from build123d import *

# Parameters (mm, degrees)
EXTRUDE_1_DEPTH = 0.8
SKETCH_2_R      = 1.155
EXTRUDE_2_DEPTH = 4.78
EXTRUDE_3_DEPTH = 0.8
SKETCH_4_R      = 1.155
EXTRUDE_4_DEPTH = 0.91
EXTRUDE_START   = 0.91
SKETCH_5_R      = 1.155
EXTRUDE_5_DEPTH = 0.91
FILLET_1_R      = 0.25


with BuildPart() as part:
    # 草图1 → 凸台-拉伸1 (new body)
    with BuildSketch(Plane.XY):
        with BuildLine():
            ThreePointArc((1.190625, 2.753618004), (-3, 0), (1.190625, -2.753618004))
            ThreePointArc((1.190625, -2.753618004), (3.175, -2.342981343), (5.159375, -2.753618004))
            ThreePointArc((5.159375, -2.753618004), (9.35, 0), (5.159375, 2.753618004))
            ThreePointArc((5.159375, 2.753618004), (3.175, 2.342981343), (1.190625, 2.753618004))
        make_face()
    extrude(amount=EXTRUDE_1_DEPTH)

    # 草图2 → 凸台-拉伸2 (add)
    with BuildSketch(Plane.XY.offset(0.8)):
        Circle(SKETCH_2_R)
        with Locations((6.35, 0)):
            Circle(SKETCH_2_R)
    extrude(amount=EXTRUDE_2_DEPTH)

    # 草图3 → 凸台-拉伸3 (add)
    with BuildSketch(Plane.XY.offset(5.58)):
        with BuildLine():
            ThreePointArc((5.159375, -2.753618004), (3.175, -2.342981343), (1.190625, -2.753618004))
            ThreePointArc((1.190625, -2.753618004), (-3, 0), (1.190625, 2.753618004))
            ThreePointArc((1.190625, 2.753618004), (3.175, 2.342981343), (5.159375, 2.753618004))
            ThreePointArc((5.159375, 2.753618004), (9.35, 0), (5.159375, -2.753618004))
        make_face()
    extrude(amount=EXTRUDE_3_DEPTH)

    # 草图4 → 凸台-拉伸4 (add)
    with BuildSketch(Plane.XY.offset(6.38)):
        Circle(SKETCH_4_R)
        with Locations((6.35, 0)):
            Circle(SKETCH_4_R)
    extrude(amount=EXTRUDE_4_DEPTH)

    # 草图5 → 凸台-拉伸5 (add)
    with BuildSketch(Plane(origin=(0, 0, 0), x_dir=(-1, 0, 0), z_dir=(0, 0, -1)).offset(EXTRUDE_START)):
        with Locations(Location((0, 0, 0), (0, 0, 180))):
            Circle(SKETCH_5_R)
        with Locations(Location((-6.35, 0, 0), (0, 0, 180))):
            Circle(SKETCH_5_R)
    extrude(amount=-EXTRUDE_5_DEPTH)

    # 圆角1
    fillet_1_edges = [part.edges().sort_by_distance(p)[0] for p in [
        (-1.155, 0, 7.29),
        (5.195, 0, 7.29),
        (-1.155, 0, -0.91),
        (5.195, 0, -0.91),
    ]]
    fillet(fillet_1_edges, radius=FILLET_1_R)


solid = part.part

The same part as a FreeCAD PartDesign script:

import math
import FreeCAD as App
import Part
import Sketcher
from FreeCAD import Vector
Q = App.Units.Quantity


def edges_at(feature, points):
    """Names of the edges that pass closest to the given points."""
    edges = feature.Shape.Edges
    near = lambda p: min(range(len(edges)), key=lambda i: edges[i].distToShape(Part.Vertex(*p))[0])
    return sorted({f"Edge{near(p) + 1}" for p in points})

doc = App.newDocument("Part")
body = doc.addObject("PartDesign::Body", "Body")

# Sketch on XY plane
sketch1 = body.newObject("Sketcher::SketchObject", "Sketch")
sketch1.AttachmentSupport = (doc.getObject("XY_Plane"), [""])
sketch1.MapMode = "FlatFace"
sketch1.addGeometry(Part.ArcOfCircle(Part.Circle(Vector(0, 0, 0), Vector(0, 0, 1), 3), math.radians(67), math.radians(293)), False)
sketch1.addGeometry(Part.ArcOfCircle(Part.Circle(Vector(3.2, -7.3, 0), Vector(0, 0, 1), 5), math.radians(67), math.radians(113)), False)
sketch1.addGeometry(Part.ArcOfCircle(Part.Circle(Vector(6.3, 0, 0), Vector(0, 0, 1), 3), math.radians(-113), math.radians(113)), False)
sketch1.addGeometry(Part.ArcOfCircle(Part.Circle(Vector(3.2, 7.3, 0), Vector(0, 0, 1), 5), math.radians(-113), math.radians(-67)), False)
sketch1.addConstraint(Sketcher.Constraint("Tangent", 0, 2, 1, 2))
sketch1.addConstraint(Sketcher.Constraint("Tangent", 1, 1, 2, 1))
sketch1.addConstraint(Sketcher.Constraint("Tangent", 2, 2, 3, 2))
sketch1.addConstraint(Sketcher.Constraint("Tangent", 3, 1, 0, 1))
sketch1.addConstraint(Sketcher.Constraint("Coincident", 0, 3, -1, 1))
sketch1.addConstraint(Sketcher.Constraint("Equal", 0, 2))
sketch1.addConstraint(Sketcher.Constraint("Equal", 1, 3))
sketch1.addConstraint(Sketcher.Constraint("PointOnObject", 2, 3, -1))
sketch1.addConstraint(Sketcher.Constraint("Radius", 0, Q("3 mm")))
sketch1.addConstraint(Sketcher.Constraint("Radius", 1, Q("5 mm")))
sketch1.addConstraint(Sketcher.Constraint("DistanceX", -1, 1, 2, 3, Q("6.35 mm")))
pad1 = body.newObject("PartDesign::Pad", "Pad")
pad1.Profile = sketch1
pad1.Length = 0.8

# Sketch on XY plane
sketch2 = body.newObject("Sketcher::SketchObject", "Sketch001")
sketch2.AttachmentSupport = (doc.getObject("XY_Plane"), [""])
sketch2.MapMode = "FlatFace"
sketch2.AttachmentOffset = App.Placement(Vector(0, 0, 0.8), App.Rotation())
sketch2.addGeometry(Part.Circle(Vector(0, 0, 0), Vector(0, 0, 1), 1.2), False)
sketch2.addGeometry(Part.Circle(Vector(6.3, 0, 0), Vector(0, 0, 1), 1.2), False)
sketch2.addConstraint(Sketcher.Constraint("Coincident", 0, 3, -1, 1))
sketch2.addConstraint(Sketcher.Constraint("Equal", 0, 1))
sketch2.addConstraint(Sketcher.Constraint("PointOnObject", 1, 3, -1))
sketch2.addConstraint(Sketcher.Constraint("Diameter", 0, Q("2.31 mm")))
sketch2.addConstraint(Sketcher.Constraint("DistanceX", -1, 1, 1, 3, Q("6.35 mm")))
pad2 = body.newObject("PartDesign::Pad", "Pad001")
pad2.Profile = sketch2
pad2.Length = 4.78

# Sketch on XY plane
sketch3 = body.newObject("Sketcher::SketchObject", "Sketch002")
sketch3.AttachmentSupport = (doc.getObject("XY_Plane"), [""])
sketch3.MapMode = "FlatFace"
sketch3.AttachmentOffset = App.Placement(Vector(0, 0, 5.58), App.Rotation())
sketch3.addGeometry(Part.ArcOfCircle(Part.Circle(Vector(3.2, -7.3, 0), Vector(0, 0, 1), 5), math.radians(67), math.radians(113)), False)
sketch3.addGeometry(Part.ArcOfCircle(Part.Circle(Vector(6.3, 0, 0), Vector(0, 0, 1), 3), math.radians(-113), math.radians(113)), False)
sketch3.addGeometry(Part.ArcOfCircle(Part.Circle(Vector(3.2, 7.3, 0), Vector(0, 0, 1), 5), math.radians(-113), math.radians(-67)), False)
sketch3.addGeometry(Part.ArcOfCircle(Part.Circle(Vector(0, 0, 0), Vector(0, 0, 1), 3), math.radians(67), math.radians(293)), False)
sketch3.addConstraint(Sketcher.Constraint("Tangent", 0, 1, 1, 1))
sketch3.addConstraint(Sketcher.Constraint("Tangent", 1, 2, 2, 2))
sketch3.addConstraint(Sketcher.Constraint("Tangent", 2, 1, 3, 1))
sketch3.addConstraint(Sketcher.Constraint("Tangent", 3, 2, 0, 2))
sketch3.addConstraint(Sketcher.Constraint("Coincident", 3, 3, -1, 1))
sketch3.addConstraint(Sketcher.Constraint("Equal", 0, 2))
sketch3.addConstraint(Sketcher.Constraint("Equal", 1, 3))
sketch3.addConstraint(Sketcher.Constraint("PointOnObject", 1, 3, -1))
sketch3.addConstraint(Sketcher.Constraint("Radius", 0, Q("5 mm")))
sketch3.addConstraint(Sketcher.Constraint("Radius", 1, Q("3 mm")))
sketch3.addConstraint(Sketcher.Constraint("DistanceX", -1, 1, 1, 3, Q("6.35 mm")))
pad3 = body.newObject("PartDesign::Pad", "Pad002")
pad3.Profile = sketch3
pad3.Length = 0.8

# Sketch on XY plane
sketch4 = body.newObject("Sketcher::SketchObject", "Sketch003")
sketch4.AttachmentSupport = (doc.getObject("XY_Plane"), [""])
sketch4.MapMode = "FlatFace"
sketch4.AttachmentOffset = App.Placement(Vector(0, 0, 6.38), App.Rotation())
sketch4.addGeometry(Part.Circle(Vector(0, 0, 0), Vector(0, 0, 1), 1.2), False)
sketch4.addGeometry(Part.Circle(Vector(6.3, 0, 0), Vector(0, 0, 1), 1.2), False)
sketch4.addConstraint(Sketcher.Constraint("Coincident", 0, 3, -1, 1))
sketch4.addConstraint(Sketcher.Constraint("Equal", 0, 1))
sketch4.addConstraint(Sketcher.Constraint("PointOnObject", 1, 3, -1))
sketch4.addConstraint(Sketcher.Constraint("Diameter", 0, Q("2.31 mm")))
sketch4.addConstraint(Sketcher.Constraint("DistanceX", -1, 1, 1, 3, Q("6.35 mm")))
pad4 = body.newObject("PartDesign::Pad", "Pad003")
pad4.Profile = sketch4
pad4.Length = 0.91

# Sketch on XY plane
sketch5 = body.newObject("Sketcher::SketchObject", "Sketch004")
sketch5.AttachmentSupport = (doc.getObject("XY_Plane"), [""])
sketch5.MapMode = "FlatFace"
sketch5.AttachmentOffset = App.Placement(Vector(0, 0, -0.91), App.Rotation())
sketch5.addGeometry(Part.Circle(Vector(0, 0, 0), Vector(0, 0, 1), 1.2), False)
sketch5.addGeometry(Part.Circle(Vector(6.3, 0, 0), Vector(0, 0, 1), 1.2), False)
sketch5.addConstraint(Sketcher.Constraint("Coincident", 0, 3, -1, 1))
sketch5.addConstraint(Sketcher.Constraint("Equal", 0, 1))
sketch5.addConstraint(Sketcher.Constraint("PointOnObject", 1, 3, -1))
sketch5.addConstraint(Sketcher.Constraint("Diameter", 0, Q("2.31 mm")))
sketch5.addConstraint(Sketcher.Constraint("DistanceX", -1, 1, 1, 3, Q("6.35 mm")))
pad5 = body.newObject("PartDesign::Pad", "Pad004")
pad5.Profile = sketch5
pad5.Length = 0.91
doc.recompute()

fillet = body.newObject("PartDesign::Fillet", "Fillet")
fillet.Base = (pad5, edges_at(pad5, [
    (-1.155, 0, 7.29),
    (5.195, 0, 7.29),
    (-1.155, 0, -0.91),
    (5.195, 0, -0.91),
]))
fillet.Radius = 0.25

doc.recompute()
